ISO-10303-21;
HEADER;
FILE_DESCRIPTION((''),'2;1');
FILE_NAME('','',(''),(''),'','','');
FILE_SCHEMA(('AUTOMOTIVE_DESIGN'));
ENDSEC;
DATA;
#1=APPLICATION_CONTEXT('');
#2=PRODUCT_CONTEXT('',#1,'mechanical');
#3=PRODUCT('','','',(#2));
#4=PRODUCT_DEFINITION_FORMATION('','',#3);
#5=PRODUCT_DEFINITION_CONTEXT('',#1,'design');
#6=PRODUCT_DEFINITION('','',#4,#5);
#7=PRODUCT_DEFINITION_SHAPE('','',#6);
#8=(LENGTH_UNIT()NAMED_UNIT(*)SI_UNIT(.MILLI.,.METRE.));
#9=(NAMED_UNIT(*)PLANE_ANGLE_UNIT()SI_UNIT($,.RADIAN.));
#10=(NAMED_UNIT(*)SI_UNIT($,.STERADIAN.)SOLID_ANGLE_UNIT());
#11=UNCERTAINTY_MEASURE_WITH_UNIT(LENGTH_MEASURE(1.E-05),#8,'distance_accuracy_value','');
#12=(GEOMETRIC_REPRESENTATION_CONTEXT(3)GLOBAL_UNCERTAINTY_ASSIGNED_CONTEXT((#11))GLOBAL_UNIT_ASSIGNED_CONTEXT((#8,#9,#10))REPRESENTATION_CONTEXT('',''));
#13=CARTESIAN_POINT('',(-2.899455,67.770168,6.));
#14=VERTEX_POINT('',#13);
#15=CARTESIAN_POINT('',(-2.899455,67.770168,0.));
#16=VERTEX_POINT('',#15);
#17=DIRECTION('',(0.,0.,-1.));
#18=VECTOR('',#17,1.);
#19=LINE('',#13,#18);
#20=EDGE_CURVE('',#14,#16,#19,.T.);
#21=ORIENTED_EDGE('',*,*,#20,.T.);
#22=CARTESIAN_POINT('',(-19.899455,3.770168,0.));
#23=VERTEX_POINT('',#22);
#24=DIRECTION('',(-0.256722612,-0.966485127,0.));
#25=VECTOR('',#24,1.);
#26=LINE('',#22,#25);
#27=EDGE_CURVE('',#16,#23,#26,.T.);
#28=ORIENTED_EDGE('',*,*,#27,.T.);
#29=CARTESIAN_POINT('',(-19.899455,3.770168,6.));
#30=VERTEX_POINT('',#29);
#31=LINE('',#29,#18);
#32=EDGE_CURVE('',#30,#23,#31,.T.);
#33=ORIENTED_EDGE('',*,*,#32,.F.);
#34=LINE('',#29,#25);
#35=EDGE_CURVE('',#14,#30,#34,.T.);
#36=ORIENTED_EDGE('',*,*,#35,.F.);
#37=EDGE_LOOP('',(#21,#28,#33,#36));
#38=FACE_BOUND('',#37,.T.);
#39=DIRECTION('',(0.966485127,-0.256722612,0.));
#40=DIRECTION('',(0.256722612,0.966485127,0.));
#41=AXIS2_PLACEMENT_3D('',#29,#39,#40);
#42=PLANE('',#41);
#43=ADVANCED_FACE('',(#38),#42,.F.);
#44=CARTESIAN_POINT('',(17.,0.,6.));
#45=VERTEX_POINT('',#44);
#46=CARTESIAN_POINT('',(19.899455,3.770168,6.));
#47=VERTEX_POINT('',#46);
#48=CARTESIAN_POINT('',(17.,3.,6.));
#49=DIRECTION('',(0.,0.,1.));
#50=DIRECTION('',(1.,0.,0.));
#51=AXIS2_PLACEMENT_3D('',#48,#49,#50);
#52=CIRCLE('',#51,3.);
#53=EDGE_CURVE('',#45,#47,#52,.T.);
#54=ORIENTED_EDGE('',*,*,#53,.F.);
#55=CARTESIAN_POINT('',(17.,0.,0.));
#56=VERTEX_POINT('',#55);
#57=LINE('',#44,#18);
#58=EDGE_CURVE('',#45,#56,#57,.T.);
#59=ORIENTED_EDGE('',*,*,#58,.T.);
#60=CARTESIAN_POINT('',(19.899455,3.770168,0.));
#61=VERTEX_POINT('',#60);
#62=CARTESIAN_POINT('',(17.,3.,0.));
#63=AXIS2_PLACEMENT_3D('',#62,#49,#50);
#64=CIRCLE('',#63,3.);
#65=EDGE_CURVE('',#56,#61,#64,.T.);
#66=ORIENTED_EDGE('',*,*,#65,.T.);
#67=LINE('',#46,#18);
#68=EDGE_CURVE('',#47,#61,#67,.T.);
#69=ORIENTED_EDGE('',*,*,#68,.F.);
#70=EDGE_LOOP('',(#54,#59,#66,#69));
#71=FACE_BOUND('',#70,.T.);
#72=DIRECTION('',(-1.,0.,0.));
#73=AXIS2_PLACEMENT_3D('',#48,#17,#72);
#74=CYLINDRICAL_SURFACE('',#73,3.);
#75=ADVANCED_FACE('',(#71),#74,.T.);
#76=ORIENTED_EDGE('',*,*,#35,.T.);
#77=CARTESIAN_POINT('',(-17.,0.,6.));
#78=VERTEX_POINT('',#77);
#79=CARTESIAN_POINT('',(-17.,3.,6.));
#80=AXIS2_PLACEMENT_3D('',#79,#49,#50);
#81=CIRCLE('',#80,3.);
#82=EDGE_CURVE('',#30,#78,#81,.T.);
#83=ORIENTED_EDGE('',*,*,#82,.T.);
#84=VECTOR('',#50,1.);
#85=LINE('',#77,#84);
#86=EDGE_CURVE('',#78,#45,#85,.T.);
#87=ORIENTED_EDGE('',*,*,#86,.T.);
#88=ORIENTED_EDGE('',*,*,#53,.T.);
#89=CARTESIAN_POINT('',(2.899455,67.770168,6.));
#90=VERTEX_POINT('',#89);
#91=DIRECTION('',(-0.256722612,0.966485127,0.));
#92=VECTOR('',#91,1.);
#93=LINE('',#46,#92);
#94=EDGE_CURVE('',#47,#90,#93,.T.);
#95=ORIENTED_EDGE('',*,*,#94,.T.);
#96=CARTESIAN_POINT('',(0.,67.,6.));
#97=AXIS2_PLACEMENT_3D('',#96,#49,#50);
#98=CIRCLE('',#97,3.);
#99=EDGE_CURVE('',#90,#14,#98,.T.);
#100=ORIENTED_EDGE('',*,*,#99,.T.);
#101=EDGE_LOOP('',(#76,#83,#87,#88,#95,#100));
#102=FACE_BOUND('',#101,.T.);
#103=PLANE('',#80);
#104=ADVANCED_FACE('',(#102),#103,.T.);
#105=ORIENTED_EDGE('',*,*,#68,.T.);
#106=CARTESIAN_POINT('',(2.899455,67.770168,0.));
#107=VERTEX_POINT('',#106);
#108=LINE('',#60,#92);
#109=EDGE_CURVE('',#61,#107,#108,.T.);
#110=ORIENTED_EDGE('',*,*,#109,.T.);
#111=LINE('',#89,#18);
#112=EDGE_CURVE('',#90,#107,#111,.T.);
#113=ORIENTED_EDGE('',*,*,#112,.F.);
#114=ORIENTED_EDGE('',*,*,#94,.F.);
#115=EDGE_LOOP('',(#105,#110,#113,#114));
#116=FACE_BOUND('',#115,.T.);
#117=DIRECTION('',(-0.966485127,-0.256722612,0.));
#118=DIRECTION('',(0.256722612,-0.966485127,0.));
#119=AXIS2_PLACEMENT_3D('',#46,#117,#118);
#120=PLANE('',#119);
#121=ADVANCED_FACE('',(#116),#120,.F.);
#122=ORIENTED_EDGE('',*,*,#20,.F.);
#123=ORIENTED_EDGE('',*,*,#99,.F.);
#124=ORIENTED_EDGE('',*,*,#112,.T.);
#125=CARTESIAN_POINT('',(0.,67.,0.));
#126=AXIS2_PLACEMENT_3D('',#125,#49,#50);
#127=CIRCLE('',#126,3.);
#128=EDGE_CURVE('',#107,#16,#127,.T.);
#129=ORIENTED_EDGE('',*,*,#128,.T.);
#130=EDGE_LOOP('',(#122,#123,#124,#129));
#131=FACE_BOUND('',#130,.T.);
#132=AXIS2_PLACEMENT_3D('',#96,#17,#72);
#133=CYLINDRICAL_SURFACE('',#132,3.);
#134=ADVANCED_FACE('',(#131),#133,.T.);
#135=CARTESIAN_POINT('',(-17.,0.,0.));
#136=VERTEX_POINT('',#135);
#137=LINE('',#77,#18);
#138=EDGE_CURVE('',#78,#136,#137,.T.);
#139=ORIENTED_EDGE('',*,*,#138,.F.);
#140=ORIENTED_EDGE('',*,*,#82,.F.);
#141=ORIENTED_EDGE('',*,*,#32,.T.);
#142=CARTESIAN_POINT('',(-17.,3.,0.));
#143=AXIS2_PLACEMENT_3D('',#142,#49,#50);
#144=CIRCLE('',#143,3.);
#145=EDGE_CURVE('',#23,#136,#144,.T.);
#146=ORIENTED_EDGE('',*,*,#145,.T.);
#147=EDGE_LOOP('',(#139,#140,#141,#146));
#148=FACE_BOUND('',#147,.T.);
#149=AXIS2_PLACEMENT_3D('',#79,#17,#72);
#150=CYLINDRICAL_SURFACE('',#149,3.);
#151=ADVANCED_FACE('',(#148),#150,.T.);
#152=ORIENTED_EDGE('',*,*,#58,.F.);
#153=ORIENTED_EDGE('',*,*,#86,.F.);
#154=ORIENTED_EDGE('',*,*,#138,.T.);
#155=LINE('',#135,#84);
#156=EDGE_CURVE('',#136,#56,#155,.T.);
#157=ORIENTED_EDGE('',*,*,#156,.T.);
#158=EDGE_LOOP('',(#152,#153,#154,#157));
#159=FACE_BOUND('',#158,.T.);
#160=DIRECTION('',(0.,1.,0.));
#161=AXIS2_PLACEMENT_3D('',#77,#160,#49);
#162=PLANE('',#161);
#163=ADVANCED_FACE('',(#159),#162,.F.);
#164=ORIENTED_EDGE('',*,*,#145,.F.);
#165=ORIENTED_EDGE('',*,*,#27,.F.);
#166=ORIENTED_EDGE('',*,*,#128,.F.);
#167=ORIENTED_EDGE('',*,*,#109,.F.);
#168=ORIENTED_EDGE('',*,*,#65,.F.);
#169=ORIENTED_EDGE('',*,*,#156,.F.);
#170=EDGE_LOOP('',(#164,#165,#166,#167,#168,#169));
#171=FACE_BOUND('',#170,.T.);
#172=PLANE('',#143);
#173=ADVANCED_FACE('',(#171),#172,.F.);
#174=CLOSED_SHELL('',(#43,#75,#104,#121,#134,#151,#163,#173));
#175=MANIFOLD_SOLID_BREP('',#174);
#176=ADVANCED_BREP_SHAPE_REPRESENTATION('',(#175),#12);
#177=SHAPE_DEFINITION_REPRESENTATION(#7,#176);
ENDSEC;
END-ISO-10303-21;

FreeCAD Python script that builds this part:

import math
import FreeCAD as App
import Part
import Sketcher

V = App.Vector

doc = App.newDocument("Part")
body = doc.addObject("PartDesign::Body", "Body")

sketch1 = body.newObject("Sketcher::SketchObject", "Sketch")
sketch1.AttachmentSupport = (doc.getObject("XY_Plane"), [""])
sketch1.MapMode = "FlatFace"
sketch1.addGeometry([
    Part.LineSegment(V(-17, 0, 0), V(17, 0, 0)),
    Part.ArcOfCircle(Part.Circle(V(17, 3, 0), V(0, 0, 1), 3), math.radians(-90), math.radians(15)),
    Part.LineSegment(V(19.9, 3.8, 0), V(2.9, 67.8, 0)),
    Part.ArcOfCircle(Part.Circle(V(0, 67, 0), V(0, 0, 1), 3), math.radians(15), math.radians(165)),
    Part.LineSegment(V(-2.9, 67.8, 0), V(-19.9, 3.8, 0)),
    Part.ArcOfCircle(Part.Circle(V(-17, 3, 0), V(0, 0, 1), 3), math.radians(165), math.radians(270)),
], False)
sketch1.addConstraint([
    Sketcher.Constraint("Tangent", 0, 2, 1, 1),
    Sketcher.Constraint("Tangent", 1, 2, 2, 1),
    Sketcher.Constraint("Tangent", 2, 2, 3, 1),
    Sketcher.Constraint("Tangent", 3, 2, 4, 1),
    Sketcher.Constraint("Tangent", 4, 2, 5, 1),
    Sketcher.Constraint("Tangent", 5, 2, 0, 1),
    Sketcher.Constraint("Horizontal", 0),
    Sketcher.Constraint("Equal", 1, 3),
    Sketcher.Constraint("Equal", 3, 5),
    Sketcher.Constraint("Symmetric", 0, 2, 5, 2, -1, 1),
    Sketcher.Constraint("PointOnObject", 3, 3, -2),
    Sketcher.Constraint("Radius", 1, 3.0),
    Sketcher.Constraint("DistanceX", 0, 1, 0, 2, 34.0),
    Sketcher.Constraint("DistanceY", -1, 1, 3, 3, 67.0),
])
pad1 = body.newObject("PartDesign::Pad", "Pad")
pad1.Profile = sketch1
pad1.Length = 6

doc.recompute()
